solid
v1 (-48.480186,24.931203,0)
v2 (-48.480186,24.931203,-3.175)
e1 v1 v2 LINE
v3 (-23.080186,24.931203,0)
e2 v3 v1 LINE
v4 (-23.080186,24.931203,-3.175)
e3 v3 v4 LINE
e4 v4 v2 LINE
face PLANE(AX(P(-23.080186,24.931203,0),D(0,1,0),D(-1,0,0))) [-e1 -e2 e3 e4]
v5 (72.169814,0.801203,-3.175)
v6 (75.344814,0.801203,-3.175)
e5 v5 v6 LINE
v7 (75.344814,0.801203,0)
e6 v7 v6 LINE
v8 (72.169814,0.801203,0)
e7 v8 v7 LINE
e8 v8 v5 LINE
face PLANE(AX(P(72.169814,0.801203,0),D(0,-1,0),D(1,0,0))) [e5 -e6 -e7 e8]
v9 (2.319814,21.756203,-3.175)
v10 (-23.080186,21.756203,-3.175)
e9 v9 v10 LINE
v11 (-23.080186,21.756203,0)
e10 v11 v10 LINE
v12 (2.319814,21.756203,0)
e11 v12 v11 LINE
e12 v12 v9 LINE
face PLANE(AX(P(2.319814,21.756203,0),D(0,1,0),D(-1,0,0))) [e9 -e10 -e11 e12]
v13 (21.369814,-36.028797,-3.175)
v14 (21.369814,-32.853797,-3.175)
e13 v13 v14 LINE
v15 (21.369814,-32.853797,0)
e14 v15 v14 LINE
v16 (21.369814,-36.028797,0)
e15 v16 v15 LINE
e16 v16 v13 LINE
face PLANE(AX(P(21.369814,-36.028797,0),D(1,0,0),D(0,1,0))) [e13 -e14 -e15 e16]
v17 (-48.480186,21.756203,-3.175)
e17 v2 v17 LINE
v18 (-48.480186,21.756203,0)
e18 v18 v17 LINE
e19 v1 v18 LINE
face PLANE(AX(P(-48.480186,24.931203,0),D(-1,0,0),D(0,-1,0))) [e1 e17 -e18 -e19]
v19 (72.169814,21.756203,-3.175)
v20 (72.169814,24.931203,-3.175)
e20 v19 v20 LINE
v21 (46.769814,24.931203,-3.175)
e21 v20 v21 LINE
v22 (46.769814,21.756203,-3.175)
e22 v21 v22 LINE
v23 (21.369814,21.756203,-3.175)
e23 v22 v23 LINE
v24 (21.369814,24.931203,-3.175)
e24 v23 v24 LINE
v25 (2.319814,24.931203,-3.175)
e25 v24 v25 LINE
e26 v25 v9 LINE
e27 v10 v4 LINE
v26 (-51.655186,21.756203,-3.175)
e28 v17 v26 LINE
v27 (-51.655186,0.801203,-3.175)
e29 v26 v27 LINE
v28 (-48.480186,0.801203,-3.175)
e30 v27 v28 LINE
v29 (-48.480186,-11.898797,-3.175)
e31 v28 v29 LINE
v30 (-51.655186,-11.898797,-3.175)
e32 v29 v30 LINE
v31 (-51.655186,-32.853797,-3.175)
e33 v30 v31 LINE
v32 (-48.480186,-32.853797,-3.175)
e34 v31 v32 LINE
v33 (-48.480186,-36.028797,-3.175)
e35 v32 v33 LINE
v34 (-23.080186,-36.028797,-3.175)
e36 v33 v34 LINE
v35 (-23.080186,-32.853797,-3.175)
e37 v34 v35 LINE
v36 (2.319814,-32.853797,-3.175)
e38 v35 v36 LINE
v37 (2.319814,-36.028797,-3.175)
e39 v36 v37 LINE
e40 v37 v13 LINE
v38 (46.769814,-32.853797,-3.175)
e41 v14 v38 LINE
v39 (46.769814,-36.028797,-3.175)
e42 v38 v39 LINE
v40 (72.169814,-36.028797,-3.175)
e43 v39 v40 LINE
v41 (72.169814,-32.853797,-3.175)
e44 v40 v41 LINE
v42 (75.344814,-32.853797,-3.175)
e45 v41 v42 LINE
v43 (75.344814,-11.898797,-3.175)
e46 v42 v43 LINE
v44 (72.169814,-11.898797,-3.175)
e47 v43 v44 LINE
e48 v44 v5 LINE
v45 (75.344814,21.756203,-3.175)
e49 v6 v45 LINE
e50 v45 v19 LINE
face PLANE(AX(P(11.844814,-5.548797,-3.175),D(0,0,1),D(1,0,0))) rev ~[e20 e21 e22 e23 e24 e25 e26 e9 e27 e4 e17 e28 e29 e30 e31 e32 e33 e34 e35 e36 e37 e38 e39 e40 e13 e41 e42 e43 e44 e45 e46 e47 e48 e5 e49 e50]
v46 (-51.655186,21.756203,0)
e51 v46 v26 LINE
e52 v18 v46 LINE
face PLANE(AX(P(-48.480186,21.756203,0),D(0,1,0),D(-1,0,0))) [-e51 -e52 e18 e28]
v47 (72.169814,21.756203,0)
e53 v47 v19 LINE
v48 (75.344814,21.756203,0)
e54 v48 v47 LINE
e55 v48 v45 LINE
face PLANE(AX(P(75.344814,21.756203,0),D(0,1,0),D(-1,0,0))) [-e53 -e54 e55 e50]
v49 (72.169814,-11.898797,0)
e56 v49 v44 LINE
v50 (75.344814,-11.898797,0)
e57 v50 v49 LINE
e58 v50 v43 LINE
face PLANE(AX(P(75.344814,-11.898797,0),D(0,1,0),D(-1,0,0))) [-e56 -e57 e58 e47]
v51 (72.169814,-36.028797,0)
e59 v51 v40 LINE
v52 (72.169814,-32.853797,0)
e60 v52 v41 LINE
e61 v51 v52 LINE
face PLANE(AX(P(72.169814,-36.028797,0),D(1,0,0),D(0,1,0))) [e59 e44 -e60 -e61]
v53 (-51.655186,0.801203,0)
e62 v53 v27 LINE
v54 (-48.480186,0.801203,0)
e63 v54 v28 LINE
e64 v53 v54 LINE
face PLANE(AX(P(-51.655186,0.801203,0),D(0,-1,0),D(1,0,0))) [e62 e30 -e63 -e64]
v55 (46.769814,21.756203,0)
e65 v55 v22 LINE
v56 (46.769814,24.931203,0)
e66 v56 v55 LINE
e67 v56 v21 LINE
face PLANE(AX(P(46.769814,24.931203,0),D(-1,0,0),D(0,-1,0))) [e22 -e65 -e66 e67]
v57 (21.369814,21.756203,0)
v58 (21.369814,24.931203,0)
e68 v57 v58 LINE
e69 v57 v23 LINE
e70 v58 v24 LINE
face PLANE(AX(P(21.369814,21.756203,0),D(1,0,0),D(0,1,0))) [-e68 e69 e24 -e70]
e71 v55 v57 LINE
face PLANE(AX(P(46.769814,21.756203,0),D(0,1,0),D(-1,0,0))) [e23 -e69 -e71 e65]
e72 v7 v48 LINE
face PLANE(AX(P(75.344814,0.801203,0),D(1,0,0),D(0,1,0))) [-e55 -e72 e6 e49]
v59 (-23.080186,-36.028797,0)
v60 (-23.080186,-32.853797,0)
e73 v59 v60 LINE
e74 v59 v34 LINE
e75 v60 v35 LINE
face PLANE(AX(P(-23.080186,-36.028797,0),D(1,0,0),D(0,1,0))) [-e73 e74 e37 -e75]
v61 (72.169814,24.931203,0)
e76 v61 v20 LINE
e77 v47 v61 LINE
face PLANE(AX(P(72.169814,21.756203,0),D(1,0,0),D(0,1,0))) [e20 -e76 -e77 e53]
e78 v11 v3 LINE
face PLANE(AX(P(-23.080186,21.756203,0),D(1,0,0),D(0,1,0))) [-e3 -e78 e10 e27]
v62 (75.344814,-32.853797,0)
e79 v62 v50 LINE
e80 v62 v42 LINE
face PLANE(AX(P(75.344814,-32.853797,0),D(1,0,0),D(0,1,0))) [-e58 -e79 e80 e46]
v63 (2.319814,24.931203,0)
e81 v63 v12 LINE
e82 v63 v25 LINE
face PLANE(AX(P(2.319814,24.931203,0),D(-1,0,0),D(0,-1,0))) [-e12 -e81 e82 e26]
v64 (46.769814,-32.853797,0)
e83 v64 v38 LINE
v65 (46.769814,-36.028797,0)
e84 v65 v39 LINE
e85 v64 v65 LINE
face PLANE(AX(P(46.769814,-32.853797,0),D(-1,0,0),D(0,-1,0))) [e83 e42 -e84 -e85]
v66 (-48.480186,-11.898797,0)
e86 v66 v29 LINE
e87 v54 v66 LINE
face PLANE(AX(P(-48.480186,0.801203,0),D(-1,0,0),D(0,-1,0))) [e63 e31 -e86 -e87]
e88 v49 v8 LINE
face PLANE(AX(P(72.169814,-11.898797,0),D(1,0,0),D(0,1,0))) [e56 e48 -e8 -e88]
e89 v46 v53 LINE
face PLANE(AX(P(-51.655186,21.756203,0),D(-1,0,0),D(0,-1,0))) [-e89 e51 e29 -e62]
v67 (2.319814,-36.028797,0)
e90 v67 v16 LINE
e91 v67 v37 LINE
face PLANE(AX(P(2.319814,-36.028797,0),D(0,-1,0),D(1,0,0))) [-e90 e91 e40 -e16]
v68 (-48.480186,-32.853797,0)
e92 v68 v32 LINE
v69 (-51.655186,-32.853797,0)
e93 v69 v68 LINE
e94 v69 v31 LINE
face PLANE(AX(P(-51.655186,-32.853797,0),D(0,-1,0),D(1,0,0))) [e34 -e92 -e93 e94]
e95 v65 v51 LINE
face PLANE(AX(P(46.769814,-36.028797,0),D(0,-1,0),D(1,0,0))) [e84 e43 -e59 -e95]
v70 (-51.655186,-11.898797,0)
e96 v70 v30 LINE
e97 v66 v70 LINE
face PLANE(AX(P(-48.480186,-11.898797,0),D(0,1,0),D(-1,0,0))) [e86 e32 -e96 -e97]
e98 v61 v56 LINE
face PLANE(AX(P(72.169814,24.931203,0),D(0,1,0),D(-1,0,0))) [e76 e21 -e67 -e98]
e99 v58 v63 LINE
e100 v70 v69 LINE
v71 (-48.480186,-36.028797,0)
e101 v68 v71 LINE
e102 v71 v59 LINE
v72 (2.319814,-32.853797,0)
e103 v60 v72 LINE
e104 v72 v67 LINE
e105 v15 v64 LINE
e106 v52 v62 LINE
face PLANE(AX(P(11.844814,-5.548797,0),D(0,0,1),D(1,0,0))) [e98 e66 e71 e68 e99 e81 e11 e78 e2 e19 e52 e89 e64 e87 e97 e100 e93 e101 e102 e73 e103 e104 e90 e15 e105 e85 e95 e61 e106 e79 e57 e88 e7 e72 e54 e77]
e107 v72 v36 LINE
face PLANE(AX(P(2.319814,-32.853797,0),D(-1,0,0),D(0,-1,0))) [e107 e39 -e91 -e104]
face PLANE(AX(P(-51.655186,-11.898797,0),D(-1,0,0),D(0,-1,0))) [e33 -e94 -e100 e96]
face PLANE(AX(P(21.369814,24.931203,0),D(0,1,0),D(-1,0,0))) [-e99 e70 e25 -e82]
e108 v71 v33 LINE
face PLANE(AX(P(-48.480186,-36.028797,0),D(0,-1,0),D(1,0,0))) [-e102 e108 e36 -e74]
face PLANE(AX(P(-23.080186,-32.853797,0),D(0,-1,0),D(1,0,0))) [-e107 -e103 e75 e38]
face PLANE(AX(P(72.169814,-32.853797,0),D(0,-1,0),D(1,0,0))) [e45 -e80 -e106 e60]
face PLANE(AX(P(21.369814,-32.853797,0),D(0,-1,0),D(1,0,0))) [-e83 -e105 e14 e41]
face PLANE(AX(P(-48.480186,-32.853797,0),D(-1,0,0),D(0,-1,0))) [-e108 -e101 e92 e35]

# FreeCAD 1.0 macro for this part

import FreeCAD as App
import Part
import Sketcher

V = App.Vector
Q = App.Units.Quantity

doc = App.newDocument("Part")
body = doc.addObject("PartDesign::Body", "Body")

# Sketch on XY plane
sketch1 = doc.addObject("Sketcher::SketchObject", "Sketch")
body.addObject(sketch1)
sketch1.AttachmentSupport = (doc.XY_Plane, [""])
sketch1.MapMode = "FlatFace"
sketch1.addGeometry(Part.LineSegment(V(-23.1, 24.9, 0), V(-48.5, 24.9, 0)), False)
sketch1.addGeometry(Part.LineSegment(V(-48.5, 24.9, 0), V(-48.5, 21.8, 0)), False)
sketch1.addGeometry(Part.LineSegment(V(-48.5, 21.8, 0), V(-51.7, 21.8, 0)), False)
sketch1.addGeometry(Part.LineSegment(V(-51.7, 21.8, 0), V(-51.7, 0.8, 0)), False)
sketch1.addGeometry(Part.LineSegment(V(-51.7, 0.8, 0), V(-48.5, 0.8, 0)), False)
sketch1.addGeometry(Part.LineSegment(V(-48.5, 0.8, 0), V(-48.5, -11.9, 0)), False)
sketch1.addGeometry(Part.LineSegment(V(-48.5, -11.9, 0), V(-51.7, -11.9, 0)), False)
sketch1.addGeometry(Part.LineSegment(V(-51.7, -11.9, 0), V(-51.7, -32.9, 0)), False)
sketch1.addGeometry(Part.LineSegment(V(-51.7, -32.9, 0), V(-48.5, -32.9, 0)), False)
sketch1.addGeometry(Part.LineSegment(V(-48.5, -32.9, 0), V(-48.5, -36, 0)), False)
sketch1.addGeometry(Part.LineSegment(V(-48.5, -36, 0), V(-23.1, -36, 0)), False)
sketch1.addGeometry(Part.LineSegment(V(-23.1, -36, 0), V(-23.1, -32.9, 0)), False)
sketch1.addGeometry(Part.LineSegment(V(-23.1, -32.9, 0), V(2.3, -32.9, 0)), False)
sketch1.addGeometry(Part.LineSegment(V(2.3, -32.9, 0), V(2.3, -36, 0)), False)
sketch1.addGeometry(Part.LineSegment(V(2.3, -36, 0), V(21.4, -36, 0)), False)
sketch1.addGeometry(Part.LineSegment(V(21.4, -36, 0), V(21.4, -32.9, 0)), False)
sketch1.addGeometry(Part.LineSegment(V(21.4, -32.9, 0), V(46.8, -32.9, 0)), False)
sketch1.addGeometry(Part.LineSegment(V(46.8, -32.9, 0), V(46.8, -36, 0)), False)
sketch1.addGeometry(Part.LineSegment(V(46.8, -36, 0), V(72.2, -36, 0)), False)
sketch1.addGeometry(Part.LineSegment(V(72.2, -36, 0), V(72.2, -32.9, 0)), False)
sketch1.addGeometry(Part.LineSegment(V(72.2, -32.9, 0), V(75.3, -32.9, 0)), False)
sketch1.addGeometry(Part.LineSegment(V(75.3, -32.9, 0), V(75.3, -11.9, 0)), False)
sketch1.addGeometry(Part.LineSegment(V(75.3, -11.9, 0), V(72.2, -11.9, 0)), False)
sketch1.addGeometry(Part.LineSegment(V(72.2, -11.9, 0), V(72.2, 0.8, 0)), False)
sketch1.addGeometry(Part.LineSegment(V(72.2, 0.8, 0), V(75.3, 0.8, 0)), False)
sketch1.addGeometry(Part.LineSegment(V(75.3, 0.8, 0), V(75.3, 21.8, 0)), False)
sketch1.addGeometry(Part.LineSegment(V(75.3, 21.8, 0), V(72.2, 21.8, 0)), False)
sketch1.addGeometry(Part.LineSegment(V(72.2, 21.8, 0), V(72.2, 24.9, 0)), False)
sketch1.addGeometry(Part.LineSegment(V(72.2, 24.9, 0), V(46.8, 24.9, 0)), False)
sketch1.addGeometry(Part.LineSegment(V(46.8, 24.9, 0), V(46.8, 21.8, 0)), False)
sketch1.addGeometry(Part.LineSegment(V(46.8, 21.8, 0), V(21.4, 21.8, 0)), False)
sketch1.addGeometry(Part.LineSegment(V(21.4, 21.8, 0), V(21.4, 24.9, 0)), False)
sketch1.addGeometry(Part.LineSegment(V(21.4, 24.9, 0), V(2.3, 24.9, 0)), False)
sketch1.addGeometry(Part.LineSegment(V(2.3, 24.9, 0), V(2.3, 21.8, 0)), False)
sketch1.addGeometry(Part.LineSegment(V(2.3, 21.8, 0), V(-23.1, 21.8, 0)), False)
sketch1.addGeometry(Part.LineSegment(V(-23.1, 21.8, 0), V(-23.1, 24.9, 0)), False)
sketch1.addConstraint(Sketcher.Constraint("Coincident", 0, 2, 1, 1))
sketch1.addConstraint(Sketcher.Constraint("Coincident", 1, 2, 2, 1))
sketch1.addConstraint(Sketcher.Constraint("Coincident", 2, 2, 3, 1))
sketch1.addConstraint(Sketcher.Constraint("Coincident", 3, 2, 4, 1))
sketch1.addConstraint(Sketcher.Constraint("Coincident", 4, 2, 5, 1))
sketch1.addConstraint(Sketcher.Constraint("Coincident", 5, 2, 6, 1))
sketch1.addConstraint(Sketcher.Constraint("Coincident", 6, 2, 7, 1))
sketch1.addConstraint(Sketcher.Constraint("Coincident", 7, 2, 8, 1))
sketch1.addConstraint(Sketcher.Constraint("Coincident", 8, 2, 9, 1))
sketch1.addConstraint(Sketcher.Constraint("Coincident", 9, 2, 10, 1))
sketch1.addConstraint(Sketcher.Constraint("Coincident", 10, 2, 11, 1))
sketch1.addConstraint(Sketcher.Constraint("Coincident", 11, 2, 12, 1))
sketch1.addConstraint(Sketcher.Constraint("Coincident", 12, 2, 13, 1))
sketch1.addConstraint(Sketcher.Constraint("Coincident", 13, 2, 14, 1))
sketch1.addConstraint(Sketcher.Constraint("Coincident", 14, 2, 15, 1))
sketch1.addConstraint(Sketcher.Constraint("Coincident", 15, 2, 16, 1))
sketch1.addConstraint(Sketcher.Constraint("Coincident", 16, 2, 17, 1))
sketch1.addConstraint(Sketcher.Constraint("Coincident", 17, 2, 18, 1))
sketch1.addConstraint(Sketcher.Constraint("Coincident", 18, 2, 19, 1))
sketch1.addConstraint(Sketcher.Constraint("Coincident", 19, 2, 20, 1))
sketch1.addConstraint(Sketcher.Constraint("Coincident", 20, 2, 21, 1))
sketch1.addConstraint(Sketcher.Constraint("Coincident", 21, 2, 22, 1))
sketch1.addConstraint(Sketcher.Constraint("Coincident", 22, 2, 23, 1))
sketch1.addConstraint(Sketcher.Constraint("Coincident", 23, 2, 24, 1))
sketch1.addConstraint(Sketcher.Constraint("Coincident", 24, 2, 25, 1))
sketch1.addConstraint(Sketcher.Constraint("Coincident", 25, 2, 26, 1))
sketch1.addConstraint(Sketcher.Constraint("Coincident", 26, 2, 27, 1))
sketch1.addConstraint(Sketcher.Constraint("Coincident", 27, 2, 28, 1))
sketch1.addConstraint(Sketcher.Constraint("Coincident", 28, 2, 29, 1))
sketch1.addConstraint(Sketcher.Constraint("Coincident", 29, 2, 30, 1))
sketch1.addConstraint(Sketcher.Constraint("Coincident", 30, 2, 31, 1))
sketch1.addConstraint(Sketcher.Constraint("Coincident", 31, 2, 32, 1))
sketch1.addConstraint(Sketcher.Constraint("Coincident", 32, 2, 33, 1))
sketch1.addConstraint(Sketcher.Constraint("Coincident", 33, 2, 34, 1))
sketch1.addConstraint(Sketcher.Constraint("Coincident", 34, 2, 35, 1))
sketch1.addConstraint(Sketcher.Constraint("Coincident", 35, 2, 0, 1))
sketch1.addConstraint(Sketcher.Constraint("Horizontal", 0))
sketch1.addConstraint(Sketcher.Constraint("Vertical", 1))
sketch1.addConstraint(Sketcher.Constraint("Horizontal", 2))
sketch1.addConstraint(Sketcher.Constraint("Vertical", 3))
sketch1.addConstraint(Sketcher.Constraint("Horizontal", 4))
sketch1.addConstraint(Sketcher.Constraint("Vertical", 5))
sketch1.addConstraint(Sketcher.Constraint("Horizontal", 6))
sketch1.addConstraint(Sketcher.Constraint("Vertical", 7))
sketch1.addConstraint(Sketcher.Constraint("Horizontal", 8))
sketch1.addConstraint(Sketcher.Constraint("Vertical", 9))
sketch1.addConstraint(Sketcher.Constraint("Horizontal", 10))
sketch1.addConstraint(Sketcher.Constraint("Vertical", 11))
sketch1.addConstraint(Sketcher.Constraint("Horizontal", 12))
sketch1.addConstraint(Sketcher.Constraint("Vertical", 13))
sketch1.addConstraint(Sketcher.Constraint("Horizontal", 14))
sketch1.addConstraint(Sketcher.Constraint("Vertical", 15))
sketch1.addConstraint(Sketcher.Constraint("Horizontal", 16))
sketch1.addConstraint(Sketcher.Constraint("Vertical", 17))
sketch1.addConstraint(Sketcher.Constraint("Horizontal", 18))
sketch1.addConstraint(Sketcher.Constraint("Vertical", 19))
sketch1.addConstraint(Sketcher.Constraint("Horizontal", 20))
sketch1.addConstraint(Sketcher.Constraint("Vertical", 21))
sketch1.addConstraint(Sketcher.Constraint("Horizontal", 22))
sketch1.addConstraint(Sketcher.Constraint("Vertical", 23))
sketch1.addConstraint(Sketcher.Constraint("Horizontal", 24))
sketch1.addConstraint(Sketcher.Constraint("Vertical", 25))
sketch1.addConstraint(Sketcher.Constraint("Horizontal", 26))
sketch1.addConstraint(Sketcher.Constraint("Vertical", 27))
sketch1.addConstraint(Sketcher.Constraint("Horizontal", 28))
sketch1.addConstraint(Sketcher.Constraint("Vertical", 29))
sketch1.addConstraint(Sketcher.Constraint("Horizontal", 30))
sketch1.addConstraint(Sketcher.Constraint("Vertical", 31))
sketch1.addConstraint(Sketcher.Constraint("Horizontal", 32))
sketch1.addConstraint(Sketcher.Constraint("Vertical", 33))
sketch1.addConstraint(Sketcher.Constraint("Horizontal", 34))
sketch1.addConstraint(Sketcher.Constraint("Vertical", 35))
sketch1.addConstraint(Sketcher.Constraint("Horizontal", 8, 2, 11, 2))
sketch1.addConstraint(Sketcher.Constraint("Horizontal", 10, 2, 13, 2))
sketch1.addConstraint(Sketcher.Constraint("Horizontal", 12, 2, 15, 2))
sketch1.addConstraint(Sketcher.Constraint("Horizontal", 14, 2, 17, 2))
sketch1.addConstraint(Sketcher.Constraint("Horizontal", 16, 2, 19, 2))
sketch1.addConstraint(Sketcher.Constraint("Horizontal", 6, 2, 21, 2))
sketch1.addConstraint(Sketcher.Constraint("Horizontal", 4, 2, 23, 2))
sketch1.addConstraint(Sketcher.Constraint("Horizontal", 2, 2, 25, 2))
sketch1.addConstraint(Sketcher.Constraint("Horizontal", 0, 2, 27, 2))
sketch1.addConstraint(Sketcher.Constraint("Horizontal", 26, 2, 29, 2))
sketch1.addConstraint(Sketcher.Constraint("Horizontal", 28, 2, 31, 2))
sketch1.addConstraint(Sketcher.Constraint("Horizontal", 30, 2, 33, 2))
sketch1.addConstraint(Sketcher.Constraint("Vertical", 1, 2, 4, 2))
sketch1.addConstraint(Sketcher.Constraint("Vertical", 3, 2, 6, 2))
sketch1.addConstraint(Sketcher.Constraint("Vertical", 5, 2, 8, 2))
sketch1.addConstraint(Sketcher.Constraint("Vertical", 19, 2, 22, 2))
sketch1.addConstraint(Sketcher.Constraint("Vertical", 21, 2, 24, 2))
sketch1.addConstraint(Sketcher.Constraint("Vertical", 23, 2, 26, 2))
sketch1.addConstraint(Sketcher.Constraint("Vertical", 17, 2, 28, 2))
sketch1.addConstraint(Sketcher.Constraint("Vertical", 15, 2, 30, 2))
sketch1.addConstraint(Sketcher.Constraint("Vertical", 13, 2, 32, 2))
sketch1.addConstraint(Sketcher.Constraint("Vertical", 11, 2, 34, 2))
sketch1.addConstraint(Sketcher.Constraint("Equal", 10, 12))
sketch1.addConstraint(Sketcher.Constraint("Equal", 12, 16))
sketch1.addConstraint(Sketcher.Constraint("Equal", 16, 18))
sketch1.addConstraint(Sketcher.Constraint("Equal", 8, 20))
sketch1.addConstraint(Sketcher.Constraint("Equal", 26, 1))
sketch1.addConstraint(Sketcher.Constraint("Equal", 3, 7))
sketch1.addConstraint(Sketcher.Constraint("Equal", 1, 9))
sketch1.addConstraint(Sketcher.Constraint("DistanceX", 0, 2, 0, 1, Q("1 in")))
sketch1.addConstraint(Sketcher.Constraint("DistanceY", 5, 2, 5, 1, Q("0.5 in")))
sketch1.addConstraint(Sketcher.Constraint("DistanceX", 14, 1, 14, 2, Q("0.75 in")))
sketch1.addConstraint(Sketcher.Constraint("DistanceX", 2, 2, 2, 1, Q("0.125 in")))
sketch1.addConstraint(Sketcher.Constraint("DistanceY", 3, 2, 3, 1, Q("0.825 in")))
sketch1.addConstraint(Sketcher.Constraint("DistanceX", 0, 2, -1, 1, Q("48.480186 mm")))
sketch1.addConstraint(Sketcher.Constraint("DistanceY", -1, 1, 0, 2, Q("24.931203 mm")))
pad1 = doc.addObject("PartDesign::Pad", "Pad")
body.addObject(pad1)
pad1.Profile = sketch1
pad1.Length = Q("0.125 in")
pad1.Reversed = True

doc.recompute()
